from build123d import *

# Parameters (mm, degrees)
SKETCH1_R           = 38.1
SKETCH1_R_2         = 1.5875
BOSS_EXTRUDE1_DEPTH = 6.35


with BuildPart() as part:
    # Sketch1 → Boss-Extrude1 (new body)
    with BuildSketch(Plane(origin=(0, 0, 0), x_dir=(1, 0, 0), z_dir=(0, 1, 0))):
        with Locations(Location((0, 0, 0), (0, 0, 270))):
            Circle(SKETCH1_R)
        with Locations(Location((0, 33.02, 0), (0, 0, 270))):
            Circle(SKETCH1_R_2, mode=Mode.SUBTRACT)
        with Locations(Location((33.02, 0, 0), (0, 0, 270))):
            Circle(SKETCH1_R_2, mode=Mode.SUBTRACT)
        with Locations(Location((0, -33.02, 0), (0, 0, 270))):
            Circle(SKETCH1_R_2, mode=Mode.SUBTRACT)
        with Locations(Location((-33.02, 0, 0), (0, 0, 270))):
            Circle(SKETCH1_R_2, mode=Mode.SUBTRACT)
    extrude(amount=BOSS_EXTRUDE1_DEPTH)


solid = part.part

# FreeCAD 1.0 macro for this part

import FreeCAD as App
import Part
import Sketcher
Q = App.Units.Quantity

doc = App.newDocument("Part")
body = doc.addObject("PartDesign::Body", "Body")

# Sketch on XZ plane
sketch1 = body.newObject("Sketcher::SketchObject", "Sketch")
sketch1.AttachmentSupport = (doc.getObject("XZ_Plane"), [""])
sketch1.MapMode = "FlatFace"
sketch1.addGeometry([
    Part.Circle(App.Vector(0, 0, 0), App.Vector(0, 0, 1), 38.1),  # 0
    Part.Circle(App.Vector(0, -33, 0), App.Vector(0, 0, 1), 1.6),  # 1
    Part.Circle(App.Vector(-33, 0, 0), App.Vector(0, 0, 1), 1.6),  # 2
    Part.Circle(App.Vector(33, 0, 0), App.Vector(0, 0, 1), 1.6),  # 3
    Part.Circle(App.Vector(0, 33, 0), App.Vector(0, 0, 1), 1.6),  # 4
], False)
sketch1.addConstraint([
    Sketcher.Constraint("Coincident", 0, 3, -1, 1),
    Sketcher.Constraint("Equal", 1, 2),
    Sketcher.Constraint("Equal", 2, 3),
    Sketcher.Constraint("Equal", 3, 4),
    Sketcher.Constraint("Symmetric", 2, 3, 3, 3, -1, 1),
    Sketcher.Constraint("Symmetric", 1, 3, 4, 3, -1, 1),
    Sketcher.Constraint("PointOnObject", 1, 3, -2),
    Sketcher.Constraint("PointOnObject", 2, 3, -1),
    Sketcher.Constraint("Diameter", 0, Q("3 in")),
    Sketcher.Constraint("Diameter", 1, Q("0.125 in")),
    Sketcher.Constraint("DistanceY", 1, 3, -1, 1, Q("1.3 in")),
    Sketcher.Constraint("DistanceX", 2, 3, -1, 1, Q("1.3 in")),
])
pad1 = body.newObject("PartDesign::Pad", "Pad")
pad1.Profile = sketch1
pad1.Length = Q("0.25 in")
pad1.Reversed = True

doc.recompute()
